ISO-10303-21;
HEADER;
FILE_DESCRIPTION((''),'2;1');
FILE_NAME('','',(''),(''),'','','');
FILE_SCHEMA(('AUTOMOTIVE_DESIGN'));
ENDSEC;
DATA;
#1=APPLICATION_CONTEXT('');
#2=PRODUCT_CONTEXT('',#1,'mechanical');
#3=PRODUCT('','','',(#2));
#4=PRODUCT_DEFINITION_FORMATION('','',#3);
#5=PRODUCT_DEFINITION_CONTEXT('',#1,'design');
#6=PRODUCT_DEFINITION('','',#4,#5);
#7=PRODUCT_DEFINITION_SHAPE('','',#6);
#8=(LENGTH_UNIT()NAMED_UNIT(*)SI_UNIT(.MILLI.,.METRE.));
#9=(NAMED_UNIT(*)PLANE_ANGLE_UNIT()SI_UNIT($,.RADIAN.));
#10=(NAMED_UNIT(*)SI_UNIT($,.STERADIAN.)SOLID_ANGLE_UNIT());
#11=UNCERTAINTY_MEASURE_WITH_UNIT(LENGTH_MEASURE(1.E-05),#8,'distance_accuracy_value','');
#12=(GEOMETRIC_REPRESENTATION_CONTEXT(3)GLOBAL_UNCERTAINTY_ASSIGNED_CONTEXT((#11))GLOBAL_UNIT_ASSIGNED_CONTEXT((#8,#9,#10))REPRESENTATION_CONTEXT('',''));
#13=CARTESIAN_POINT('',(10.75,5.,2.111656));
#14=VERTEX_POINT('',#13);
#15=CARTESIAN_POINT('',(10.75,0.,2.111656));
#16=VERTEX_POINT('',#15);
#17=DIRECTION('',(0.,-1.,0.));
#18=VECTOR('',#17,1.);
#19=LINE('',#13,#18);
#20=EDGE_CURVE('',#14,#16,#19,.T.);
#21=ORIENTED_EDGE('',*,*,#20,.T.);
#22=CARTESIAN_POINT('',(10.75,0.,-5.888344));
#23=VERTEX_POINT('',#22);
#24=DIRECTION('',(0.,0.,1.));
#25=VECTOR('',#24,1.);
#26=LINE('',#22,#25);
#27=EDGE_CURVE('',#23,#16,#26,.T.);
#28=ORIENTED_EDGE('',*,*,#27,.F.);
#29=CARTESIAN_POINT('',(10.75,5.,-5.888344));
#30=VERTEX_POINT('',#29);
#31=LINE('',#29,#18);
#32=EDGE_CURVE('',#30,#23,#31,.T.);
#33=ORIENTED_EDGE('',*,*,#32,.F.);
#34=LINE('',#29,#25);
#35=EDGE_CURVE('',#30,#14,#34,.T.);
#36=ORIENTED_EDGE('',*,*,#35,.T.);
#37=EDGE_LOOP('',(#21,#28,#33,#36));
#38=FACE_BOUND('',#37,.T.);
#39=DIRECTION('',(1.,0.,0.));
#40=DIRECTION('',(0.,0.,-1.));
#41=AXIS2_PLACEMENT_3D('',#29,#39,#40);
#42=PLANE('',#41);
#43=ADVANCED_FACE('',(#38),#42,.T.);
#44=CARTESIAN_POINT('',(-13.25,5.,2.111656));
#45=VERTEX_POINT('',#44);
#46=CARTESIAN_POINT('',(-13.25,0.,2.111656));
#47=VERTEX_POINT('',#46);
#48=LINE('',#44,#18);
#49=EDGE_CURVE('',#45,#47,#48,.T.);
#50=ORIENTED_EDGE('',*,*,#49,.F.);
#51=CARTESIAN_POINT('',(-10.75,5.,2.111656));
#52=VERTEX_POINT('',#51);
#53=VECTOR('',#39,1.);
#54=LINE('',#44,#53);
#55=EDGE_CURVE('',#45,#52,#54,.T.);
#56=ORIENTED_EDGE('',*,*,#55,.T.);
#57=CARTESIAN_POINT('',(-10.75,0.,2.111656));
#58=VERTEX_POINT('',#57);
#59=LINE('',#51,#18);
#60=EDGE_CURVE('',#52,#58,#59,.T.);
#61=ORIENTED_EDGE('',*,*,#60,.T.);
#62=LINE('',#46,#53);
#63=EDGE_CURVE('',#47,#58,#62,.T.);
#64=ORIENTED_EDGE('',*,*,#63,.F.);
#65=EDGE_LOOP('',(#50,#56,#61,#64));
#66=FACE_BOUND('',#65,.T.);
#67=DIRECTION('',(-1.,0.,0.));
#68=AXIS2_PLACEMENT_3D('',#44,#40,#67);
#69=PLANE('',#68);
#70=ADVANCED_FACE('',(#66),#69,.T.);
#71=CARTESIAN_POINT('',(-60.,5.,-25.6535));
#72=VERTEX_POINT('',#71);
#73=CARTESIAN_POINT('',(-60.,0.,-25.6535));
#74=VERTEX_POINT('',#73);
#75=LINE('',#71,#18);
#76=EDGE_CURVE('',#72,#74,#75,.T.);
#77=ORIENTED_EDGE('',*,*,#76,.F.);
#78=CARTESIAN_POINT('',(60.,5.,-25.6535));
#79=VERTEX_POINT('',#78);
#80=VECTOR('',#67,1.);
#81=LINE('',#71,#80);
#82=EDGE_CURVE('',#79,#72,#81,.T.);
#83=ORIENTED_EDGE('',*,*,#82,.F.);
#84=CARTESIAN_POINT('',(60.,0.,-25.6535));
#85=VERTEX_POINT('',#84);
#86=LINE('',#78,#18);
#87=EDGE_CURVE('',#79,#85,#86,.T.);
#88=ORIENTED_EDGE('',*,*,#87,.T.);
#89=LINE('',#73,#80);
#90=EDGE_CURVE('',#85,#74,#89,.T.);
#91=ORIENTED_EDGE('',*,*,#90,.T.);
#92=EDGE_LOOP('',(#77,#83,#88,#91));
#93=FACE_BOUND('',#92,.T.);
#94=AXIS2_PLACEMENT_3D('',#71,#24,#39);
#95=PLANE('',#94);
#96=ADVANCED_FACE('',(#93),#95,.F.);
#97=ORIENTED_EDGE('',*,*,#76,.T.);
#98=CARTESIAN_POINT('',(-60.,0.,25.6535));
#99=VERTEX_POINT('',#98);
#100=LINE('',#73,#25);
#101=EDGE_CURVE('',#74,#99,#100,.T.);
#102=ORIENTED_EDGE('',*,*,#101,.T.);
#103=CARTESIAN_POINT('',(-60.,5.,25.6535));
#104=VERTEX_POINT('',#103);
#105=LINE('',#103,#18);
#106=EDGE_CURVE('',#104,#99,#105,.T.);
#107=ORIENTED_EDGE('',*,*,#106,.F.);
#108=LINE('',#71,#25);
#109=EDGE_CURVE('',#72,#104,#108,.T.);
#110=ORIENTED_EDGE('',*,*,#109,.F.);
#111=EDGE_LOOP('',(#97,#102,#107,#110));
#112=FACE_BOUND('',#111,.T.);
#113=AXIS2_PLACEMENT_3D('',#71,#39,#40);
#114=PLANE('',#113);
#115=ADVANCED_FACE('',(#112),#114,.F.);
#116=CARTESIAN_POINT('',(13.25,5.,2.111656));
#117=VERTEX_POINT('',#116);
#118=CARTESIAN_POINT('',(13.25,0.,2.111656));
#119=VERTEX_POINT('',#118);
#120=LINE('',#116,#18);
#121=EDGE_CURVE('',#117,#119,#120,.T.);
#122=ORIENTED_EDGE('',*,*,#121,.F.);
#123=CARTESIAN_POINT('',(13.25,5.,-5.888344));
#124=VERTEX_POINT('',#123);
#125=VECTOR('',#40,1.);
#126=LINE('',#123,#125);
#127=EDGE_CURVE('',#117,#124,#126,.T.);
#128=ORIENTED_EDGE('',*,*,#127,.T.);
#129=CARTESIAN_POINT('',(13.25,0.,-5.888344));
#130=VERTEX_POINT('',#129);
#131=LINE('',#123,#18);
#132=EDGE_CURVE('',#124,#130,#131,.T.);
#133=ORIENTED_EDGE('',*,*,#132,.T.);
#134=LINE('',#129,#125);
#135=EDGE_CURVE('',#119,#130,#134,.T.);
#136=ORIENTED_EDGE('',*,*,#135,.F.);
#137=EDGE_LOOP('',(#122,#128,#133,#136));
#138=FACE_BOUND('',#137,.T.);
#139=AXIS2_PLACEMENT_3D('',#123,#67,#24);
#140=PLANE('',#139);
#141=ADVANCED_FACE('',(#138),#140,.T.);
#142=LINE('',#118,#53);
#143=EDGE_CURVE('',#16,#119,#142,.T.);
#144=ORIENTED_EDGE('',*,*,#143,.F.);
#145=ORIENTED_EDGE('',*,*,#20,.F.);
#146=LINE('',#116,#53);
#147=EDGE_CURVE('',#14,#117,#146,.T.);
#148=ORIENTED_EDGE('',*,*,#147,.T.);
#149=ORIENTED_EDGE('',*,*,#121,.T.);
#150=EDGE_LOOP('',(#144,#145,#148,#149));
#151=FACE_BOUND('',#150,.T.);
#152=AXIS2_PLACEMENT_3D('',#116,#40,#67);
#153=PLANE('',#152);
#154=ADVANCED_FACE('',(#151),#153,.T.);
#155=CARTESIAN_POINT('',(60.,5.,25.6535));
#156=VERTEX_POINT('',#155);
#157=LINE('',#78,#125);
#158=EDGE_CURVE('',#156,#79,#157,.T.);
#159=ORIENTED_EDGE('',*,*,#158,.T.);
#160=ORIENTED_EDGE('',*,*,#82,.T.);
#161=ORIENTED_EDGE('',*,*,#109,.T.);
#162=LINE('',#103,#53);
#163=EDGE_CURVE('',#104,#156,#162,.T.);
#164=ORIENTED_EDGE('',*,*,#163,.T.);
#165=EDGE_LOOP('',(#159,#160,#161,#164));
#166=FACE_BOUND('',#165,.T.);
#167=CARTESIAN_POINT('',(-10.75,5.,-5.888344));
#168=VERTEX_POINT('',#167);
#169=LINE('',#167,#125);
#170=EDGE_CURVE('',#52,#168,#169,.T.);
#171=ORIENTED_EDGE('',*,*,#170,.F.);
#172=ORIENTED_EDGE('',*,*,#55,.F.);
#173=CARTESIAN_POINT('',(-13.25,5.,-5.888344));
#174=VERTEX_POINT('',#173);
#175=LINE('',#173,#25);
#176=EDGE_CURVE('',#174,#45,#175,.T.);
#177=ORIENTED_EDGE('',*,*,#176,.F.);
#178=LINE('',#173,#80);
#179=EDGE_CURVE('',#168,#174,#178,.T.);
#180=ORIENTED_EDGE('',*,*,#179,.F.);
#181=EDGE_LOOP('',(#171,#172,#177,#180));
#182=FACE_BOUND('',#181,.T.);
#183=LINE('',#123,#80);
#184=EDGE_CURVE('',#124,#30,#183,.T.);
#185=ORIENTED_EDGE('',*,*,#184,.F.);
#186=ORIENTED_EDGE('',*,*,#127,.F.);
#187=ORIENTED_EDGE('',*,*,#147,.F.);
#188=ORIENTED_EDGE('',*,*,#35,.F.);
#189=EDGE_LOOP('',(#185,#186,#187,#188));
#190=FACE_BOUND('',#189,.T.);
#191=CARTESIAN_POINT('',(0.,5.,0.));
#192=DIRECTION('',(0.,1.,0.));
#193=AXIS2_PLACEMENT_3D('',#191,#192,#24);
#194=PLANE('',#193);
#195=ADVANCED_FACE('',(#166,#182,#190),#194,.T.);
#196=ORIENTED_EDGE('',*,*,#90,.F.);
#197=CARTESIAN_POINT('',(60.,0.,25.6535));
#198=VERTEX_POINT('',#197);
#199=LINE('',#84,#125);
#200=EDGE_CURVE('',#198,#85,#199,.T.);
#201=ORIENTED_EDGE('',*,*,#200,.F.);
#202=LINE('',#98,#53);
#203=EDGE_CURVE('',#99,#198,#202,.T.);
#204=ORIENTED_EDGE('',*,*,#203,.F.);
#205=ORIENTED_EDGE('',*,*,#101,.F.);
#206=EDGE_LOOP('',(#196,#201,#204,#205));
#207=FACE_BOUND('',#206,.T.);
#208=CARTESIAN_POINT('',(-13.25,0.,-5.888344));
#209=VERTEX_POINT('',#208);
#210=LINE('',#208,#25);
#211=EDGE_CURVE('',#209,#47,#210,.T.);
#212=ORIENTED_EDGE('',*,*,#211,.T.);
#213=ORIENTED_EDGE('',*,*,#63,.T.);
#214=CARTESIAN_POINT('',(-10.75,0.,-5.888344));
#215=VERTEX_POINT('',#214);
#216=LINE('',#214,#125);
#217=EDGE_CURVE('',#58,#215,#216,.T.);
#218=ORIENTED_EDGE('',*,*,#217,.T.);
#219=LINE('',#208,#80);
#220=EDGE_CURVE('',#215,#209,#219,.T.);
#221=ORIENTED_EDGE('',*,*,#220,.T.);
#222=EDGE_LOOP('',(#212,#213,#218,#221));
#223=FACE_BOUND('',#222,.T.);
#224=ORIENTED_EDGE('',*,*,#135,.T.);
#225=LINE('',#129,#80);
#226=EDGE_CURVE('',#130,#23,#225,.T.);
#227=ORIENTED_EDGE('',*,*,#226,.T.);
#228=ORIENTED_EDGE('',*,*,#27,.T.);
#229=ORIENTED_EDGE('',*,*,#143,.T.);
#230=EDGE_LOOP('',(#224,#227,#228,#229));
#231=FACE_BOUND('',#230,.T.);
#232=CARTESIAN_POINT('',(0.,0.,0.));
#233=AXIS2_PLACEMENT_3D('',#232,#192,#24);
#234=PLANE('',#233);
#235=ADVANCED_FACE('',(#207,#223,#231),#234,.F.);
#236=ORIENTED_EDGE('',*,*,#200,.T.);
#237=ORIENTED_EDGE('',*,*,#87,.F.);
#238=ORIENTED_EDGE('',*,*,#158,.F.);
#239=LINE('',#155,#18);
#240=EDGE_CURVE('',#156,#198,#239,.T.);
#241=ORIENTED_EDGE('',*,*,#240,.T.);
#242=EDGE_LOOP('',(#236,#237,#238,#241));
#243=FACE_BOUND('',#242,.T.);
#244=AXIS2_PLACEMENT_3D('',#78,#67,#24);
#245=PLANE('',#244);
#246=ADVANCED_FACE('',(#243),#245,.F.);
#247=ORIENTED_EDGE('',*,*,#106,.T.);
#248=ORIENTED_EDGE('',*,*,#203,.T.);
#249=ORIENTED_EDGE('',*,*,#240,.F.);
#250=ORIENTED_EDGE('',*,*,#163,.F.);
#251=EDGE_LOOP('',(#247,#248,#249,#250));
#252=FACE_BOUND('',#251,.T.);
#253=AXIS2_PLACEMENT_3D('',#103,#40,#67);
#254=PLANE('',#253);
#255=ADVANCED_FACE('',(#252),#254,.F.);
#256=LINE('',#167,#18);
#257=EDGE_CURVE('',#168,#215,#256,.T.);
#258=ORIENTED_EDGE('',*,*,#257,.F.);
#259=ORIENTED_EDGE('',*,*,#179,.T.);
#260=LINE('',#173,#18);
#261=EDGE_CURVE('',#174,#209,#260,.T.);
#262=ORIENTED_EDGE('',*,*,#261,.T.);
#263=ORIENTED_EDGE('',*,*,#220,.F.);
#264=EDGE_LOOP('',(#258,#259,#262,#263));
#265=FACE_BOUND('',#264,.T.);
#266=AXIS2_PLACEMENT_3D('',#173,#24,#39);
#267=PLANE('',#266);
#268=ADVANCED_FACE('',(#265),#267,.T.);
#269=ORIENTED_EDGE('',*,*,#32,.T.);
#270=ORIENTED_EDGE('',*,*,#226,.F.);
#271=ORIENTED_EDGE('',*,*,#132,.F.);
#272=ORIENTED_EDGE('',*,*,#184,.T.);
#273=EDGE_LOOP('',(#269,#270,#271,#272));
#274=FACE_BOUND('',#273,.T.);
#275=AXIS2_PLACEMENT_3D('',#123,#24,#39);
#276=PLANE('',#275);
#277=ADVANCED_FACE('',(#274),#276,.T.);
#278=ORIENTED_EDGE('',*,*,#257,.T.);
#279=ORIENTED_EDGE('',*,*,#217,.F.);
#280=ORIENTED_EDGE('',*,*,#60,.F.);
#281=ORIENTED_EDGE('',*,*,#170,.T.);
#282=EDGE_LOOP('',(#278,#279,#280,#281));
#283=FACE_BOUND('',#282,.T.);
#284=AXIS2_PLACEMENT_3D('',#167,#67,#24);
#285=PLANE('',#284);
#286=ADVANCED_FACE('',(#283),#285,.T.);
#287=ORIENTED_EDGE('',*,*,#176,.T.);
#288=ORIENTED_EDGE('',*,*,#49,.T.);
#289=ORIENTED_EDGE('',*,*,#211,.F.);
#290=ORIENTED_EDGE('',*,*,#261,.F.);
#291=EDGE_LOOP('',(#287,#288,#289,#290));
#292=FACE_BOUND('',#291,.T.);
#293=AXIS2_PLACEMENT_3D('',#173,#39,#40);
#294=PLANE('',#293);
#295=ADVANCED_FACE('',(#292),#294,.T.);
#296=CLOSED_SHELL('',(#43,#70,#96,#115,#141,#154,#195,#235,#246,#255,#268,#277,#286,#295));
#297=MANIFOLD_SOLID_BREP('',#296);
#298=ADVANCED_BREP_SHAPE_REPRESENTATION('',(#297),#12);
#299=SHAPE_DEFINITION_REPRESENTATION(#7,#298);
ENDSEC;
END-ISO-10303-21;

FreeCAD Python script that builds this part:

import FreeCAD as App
import Part
import Sketcher
from FreeCAD import Vector
Q = App.Units.Quantity


def add_polygon(sketch, points):
    """Adds a closed chain of lines whose ends are joined by coincident constraints."""
    first, n = sketch.GeometryCount, len(points)
    for a, b in zip(points, points[1:] + points[:1]):
        sketch.addGeometry(Part.LineSegment(App.Vector(*a, 0), App.Vector(*b, 0)), False)
    for i in range(n):
        sketch.addConstraint(Sketcher.Constraint("Coincident", first + i, 2, first + (i + 1) % n, 1))

doc = App.newDocument("Part")
body = doc.addObject("PartDesign::Body", "Body")

sketch1 = body.newObject("Sketcher::SketchObject", "Sketch")
sketch1.AttachmentSupport = (doc.getObject("XZ_Plane"), [""])
sketch1.MapMode = "FlatFace"
add_polygon(sketch1, [(-60, -25.6535), (-60, 25.6535), (60, 25.6535), (60, -25.6535)])
add_polygon(sketch1, [(-10.75, 2.111656), (-13.25, 2.111656), (-13.25, -5.888344), (-10.75, -5.888344)])
add_polygon(sketch1, [(13.25, 2.111656), (10.75, 2.111656), (10.75, -5.888344), (13.25, -5.888344)])
sketch1.addConstraint(Sketcher.Constraint("Vertical", 0))
sketch1.addConstraint(Sketcher.Constraint("Horizontal", 1))
sketch1.addConstraint(Sketcher.Constraint("Vertical", 2))
sketch1.addConstraint(Sketcher.Constraint("Horizontal", 3))
sketch1.addConstraint(Sketcher.Constraint("Horizontal", 4))
sketch1.addConstraint(Sketcher.Constraint("Vertical", 5))
sketch1.addConstraint(Sketcher.Constraint("Horizontal", 6))
sketch1.addConstraint(Sketcher.Constraint("Vertical", 7))
sketch1.addConstraint(Sketcher.Constraint("Horizontal", 8))
sketch1.addConstraint(Sketcher.Constraint("Vertical", 9))
sketch1.addConstraint(Sketcher.Constraint("Horizontal", 10))
sketch1.addConstraint(Sketcher.Constraint("Vertical", 11))
sketch1.addConstraint(Sketcher.Constraint("Symmetric", 0, 2, 2, 2, -1, 1))
sketch1.addConstraint(Sketcher.Constraint("Symmetric", 7, 2, 8, 2, -2))
sketch1.addConstraint(Sketcher.Constraint("Symmetric", 5, 2, 10, 2, -2))
sketch1.addConstraint(Sketcher.Constraint("DistanceX", 1, 1, 1, 2, Q("120 mm")))
sketch1.addConstraint(Sketcher.Constraint("DistanceY", 5, 2, 5, 1, Q("8 mm")))
sketch1.addConstraint(Sketcher.Constraint("DistanceX", 4, 2, 4, 1, Q("2.5 mm")))
sketch1.addConstraint(Sketcher.Constraint("DistanceX", 4, 2, 8, 2, Q("24 mm")))
sketch1.addConstraint(Sketcher.Constraint("DistanceY", 0, 1, 0, 2, Q("51.307 mm")))
sketch1.addConstraint(Sketcher.Constraint("DistanceY", -1, 1, 4, 2, Q("2.111656 mm")))
pad1 = body.newObject("PartDesign::Pad", "Pad")
pad1.Profile = sketch1
pad1.Length = 5
pad1.Reversed = True

doc.recompute()
